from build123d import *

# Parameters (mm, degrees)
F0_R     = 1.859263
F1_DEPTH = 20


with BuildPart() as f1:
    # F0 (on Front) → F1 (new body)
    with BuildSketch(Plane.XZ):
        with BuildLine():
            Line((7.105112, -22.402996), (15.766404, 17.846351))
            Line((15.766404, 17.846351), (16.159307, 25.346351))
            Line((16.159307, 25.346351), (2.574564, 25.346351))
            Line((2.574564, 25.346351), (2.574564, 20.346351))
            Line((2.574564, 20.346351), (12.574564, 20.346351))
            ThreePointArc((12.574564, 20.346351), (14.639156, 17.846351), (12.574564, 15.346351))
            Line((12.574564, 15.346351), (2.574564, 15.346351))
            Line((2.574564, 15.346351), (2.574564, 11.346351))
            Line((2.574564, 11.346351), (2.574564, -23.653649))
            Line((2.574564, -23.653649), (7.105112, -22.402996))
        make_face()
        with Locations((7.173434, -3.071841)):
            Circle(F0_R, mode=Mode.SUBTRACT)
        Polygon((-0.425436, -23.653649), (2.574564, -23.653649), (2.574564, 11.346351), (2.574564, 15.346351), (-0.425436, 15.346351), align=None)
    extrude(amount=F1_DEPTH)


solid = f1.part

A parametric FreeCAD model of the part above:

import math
import FreeCAD as App
import Part
import Sketcher

V = App.Vector
Q = App.Units.Quantity

doc = App.newDocument("Part")
body = doc.addObject("PartDesign::Body", "Body")

sketch1 = body.newObject("Sketcher::SketchObject", "Sketch")
sketch1.AttachmentSupport = (doc.getObject("XZ_Plane"), [""])
sketch1.MapMode = "FlatFace"
sketch1.addGeometry(Part.LineSegment(V(7.105112, -22.402996, 0), V(15.766404, 17.846351, 0)), False)
sketch1.addGeometry(Part.LineSegment(V(15.766404, 17.846351, 0), V(16.159307, 25.346351, 0)), False)
sketch1.addGeometry(Part.LineSegment(V(16.159307, 25.346351, 0), V(2.574564, 25.346351, 0)), False)
sketch1.addGeometry(Part.LineSegment(V(2.574564, 25.346351, 0), V(2.574564, 20.346351, 0)), False)
sketch1.addGeometry(Part.LineSegment(V(2.574564, 20.346351, 0), V(12.574564, 20.346351, 0)), False)
sketch1.addGeometry(Part.ArcOfCircle(Part.Circle(V(12.093244, 17.846351, 0), V(0, 0, 1), 2.545912), math.radians(-79.102295), math.radians(79.102295)), False)
sketch1.addGeometry(Part.LineSegment(V(12.574564, 15.346351, 0), V(-0.425436, 15.346351, 0)), False)
sketch1.addGeometry(Part.LineSegment(V(-0.425436, 15.346351, 0), V(-0.425436, -23.653649, 0)), False)
sketch1.addGeometry(Part.LineSegment(V(-0.425436, -23.653649, 0), V(2.574564, -23.653649, 0)), False)
sketch1.addGeometry(Part.LineSegment(V(2.574564, -23.653649, 0), V(7.105112, -22.402996, 0)), False)
sketch1.addGeometry(Part.Circle(V(7.173434, -3.071841, 0), V(0, 0, 1), 1.859263), False)
sketch1.addConstraint(Sketcher.Constraint("Coincident", 0, 2, 1, 1))
sketch1.addConstraint(Sketcher.Constraint("Coincident", 1, 2, 2, 1))
sketch1.addConstraint(Sketcher.Constraint("Coincident", 2, 2, 3, 1))
sketch1.addConstraint(Sketcher.Constraint("Coincident", 3, 2, 4, 1))
sketch1.addConstraint(Sketcher.Constraint("Coincident", 4, 2, 5, 2))
sketch1.addConstraint(Sketcher.Constraint("Coincident", 5, 1, 6, 1))
sketch1.addConstraint(Sketcher.Constraint("Coincident", 6, 2, 7, 1))
sketch1.addConstraint(Sketcher.Constraint("Coincident", 7, 2, 8, 1))
sketch1.addConstraint(Sketcher.Constraint("Coincident", 8, 2, 9, 1))
sketch1.addConstraint(Sketcher.Constraint("Coincident", 9, 2, 0, 1))
sketch1.addConstraint(Sketcher.Constraint("Horizontal", 2))
sketch1.addConstraint(Sketcher.Constraint("Vertical", 3))
sketch1.addConstraint(Sketcher.Constraint("Horizontal", 4))
sketch1.addConstraint(Sketcher.Constraint("Horizontal", 6))
sketch1.addConstraint(Sketcher.Constraint("Vertical", 7))
sketch1.addConstraint(Sketcher.Constraint("Horizontal", 8))
sketch1.addConstraint(Sketcher.Constraint("Horizontal", 5, 3, 0, 2))
sketch1.addConstraint(Sketcher.Constraint("Vertical", 4, 2, 5, 1))
sketch1.addConstraint(Sketcher.Constraint("Vertical", 3, 2, 8, 2))
sketch1.addConstraint(Sketcher.Constraint("DistanceX", 4, 1, 4, 2, Q("10 mm")))
sketch1.addConstraint(Sketcher.Constraint("DistanceX", 6, 2, 6, 1, Q("13 mm")))
sketch1.addConstraint(Sketcher.Constraint("DistanceY", 3, 2, 3, 1, Q("5 mm")))
sketch1.addConstraint(Sketcher.Constraint("DistanceY", 7, 2, 7, 1, Q("39 mm")))
sketch1.addConstraint(Sketcher.Constraint("DistanceY", 5, 1, 4, 2, Q("5 mm")))
sketch1.addConstraint(Sketcher.Constraint("Distance", 9, Q("4.7 mm")))
sketch1.addConstraint(Sketcher.Constraint("Diameter", 10, Q("3.718526 mm")))
sketch1.addConstraint(Sketcher.Constraint("Radius", 5, Q("2.545912 mm")))
sketch1.addConstraint(Sketcher.Constraint("DistanceX", 2, 2, 2, 1, Q("13.584743 mm")))
sketch1.addConstraint(Sketcher.Constraint("DistanceY", -1, 1, 5, 3, Q("17.846351 mm")))
sketch1.addConstraint(Sketcher.Constraint("DistanceY", 10, 3, -1, 1, Q("3.071841 mm")))
sketch1.addConstraint(Sketcher.Constraint("DistanceX", 10, 3, 5, 3, Q("4.91981 mm")))
sketch1.addConstraint(Sketcher.Constraint("DistanceX", 5, 3, 0, 2, Q("3.67316 mm")))
sketch1.addConstraint(Sketcher.Constraint("DistanceX", 7, 2, 9, 2, Q("7.530548 mm")))
sketch1.addConstraint(Sketcher.Constraint("DistanceX", -1, 1, 5, 3, Q("12.093244 mm")))
pad1 = body.newObject("PartDesign::Pad", "Pad")
pad1.Profile = sketch1
pad1.Length = 20

doc.recompute()
